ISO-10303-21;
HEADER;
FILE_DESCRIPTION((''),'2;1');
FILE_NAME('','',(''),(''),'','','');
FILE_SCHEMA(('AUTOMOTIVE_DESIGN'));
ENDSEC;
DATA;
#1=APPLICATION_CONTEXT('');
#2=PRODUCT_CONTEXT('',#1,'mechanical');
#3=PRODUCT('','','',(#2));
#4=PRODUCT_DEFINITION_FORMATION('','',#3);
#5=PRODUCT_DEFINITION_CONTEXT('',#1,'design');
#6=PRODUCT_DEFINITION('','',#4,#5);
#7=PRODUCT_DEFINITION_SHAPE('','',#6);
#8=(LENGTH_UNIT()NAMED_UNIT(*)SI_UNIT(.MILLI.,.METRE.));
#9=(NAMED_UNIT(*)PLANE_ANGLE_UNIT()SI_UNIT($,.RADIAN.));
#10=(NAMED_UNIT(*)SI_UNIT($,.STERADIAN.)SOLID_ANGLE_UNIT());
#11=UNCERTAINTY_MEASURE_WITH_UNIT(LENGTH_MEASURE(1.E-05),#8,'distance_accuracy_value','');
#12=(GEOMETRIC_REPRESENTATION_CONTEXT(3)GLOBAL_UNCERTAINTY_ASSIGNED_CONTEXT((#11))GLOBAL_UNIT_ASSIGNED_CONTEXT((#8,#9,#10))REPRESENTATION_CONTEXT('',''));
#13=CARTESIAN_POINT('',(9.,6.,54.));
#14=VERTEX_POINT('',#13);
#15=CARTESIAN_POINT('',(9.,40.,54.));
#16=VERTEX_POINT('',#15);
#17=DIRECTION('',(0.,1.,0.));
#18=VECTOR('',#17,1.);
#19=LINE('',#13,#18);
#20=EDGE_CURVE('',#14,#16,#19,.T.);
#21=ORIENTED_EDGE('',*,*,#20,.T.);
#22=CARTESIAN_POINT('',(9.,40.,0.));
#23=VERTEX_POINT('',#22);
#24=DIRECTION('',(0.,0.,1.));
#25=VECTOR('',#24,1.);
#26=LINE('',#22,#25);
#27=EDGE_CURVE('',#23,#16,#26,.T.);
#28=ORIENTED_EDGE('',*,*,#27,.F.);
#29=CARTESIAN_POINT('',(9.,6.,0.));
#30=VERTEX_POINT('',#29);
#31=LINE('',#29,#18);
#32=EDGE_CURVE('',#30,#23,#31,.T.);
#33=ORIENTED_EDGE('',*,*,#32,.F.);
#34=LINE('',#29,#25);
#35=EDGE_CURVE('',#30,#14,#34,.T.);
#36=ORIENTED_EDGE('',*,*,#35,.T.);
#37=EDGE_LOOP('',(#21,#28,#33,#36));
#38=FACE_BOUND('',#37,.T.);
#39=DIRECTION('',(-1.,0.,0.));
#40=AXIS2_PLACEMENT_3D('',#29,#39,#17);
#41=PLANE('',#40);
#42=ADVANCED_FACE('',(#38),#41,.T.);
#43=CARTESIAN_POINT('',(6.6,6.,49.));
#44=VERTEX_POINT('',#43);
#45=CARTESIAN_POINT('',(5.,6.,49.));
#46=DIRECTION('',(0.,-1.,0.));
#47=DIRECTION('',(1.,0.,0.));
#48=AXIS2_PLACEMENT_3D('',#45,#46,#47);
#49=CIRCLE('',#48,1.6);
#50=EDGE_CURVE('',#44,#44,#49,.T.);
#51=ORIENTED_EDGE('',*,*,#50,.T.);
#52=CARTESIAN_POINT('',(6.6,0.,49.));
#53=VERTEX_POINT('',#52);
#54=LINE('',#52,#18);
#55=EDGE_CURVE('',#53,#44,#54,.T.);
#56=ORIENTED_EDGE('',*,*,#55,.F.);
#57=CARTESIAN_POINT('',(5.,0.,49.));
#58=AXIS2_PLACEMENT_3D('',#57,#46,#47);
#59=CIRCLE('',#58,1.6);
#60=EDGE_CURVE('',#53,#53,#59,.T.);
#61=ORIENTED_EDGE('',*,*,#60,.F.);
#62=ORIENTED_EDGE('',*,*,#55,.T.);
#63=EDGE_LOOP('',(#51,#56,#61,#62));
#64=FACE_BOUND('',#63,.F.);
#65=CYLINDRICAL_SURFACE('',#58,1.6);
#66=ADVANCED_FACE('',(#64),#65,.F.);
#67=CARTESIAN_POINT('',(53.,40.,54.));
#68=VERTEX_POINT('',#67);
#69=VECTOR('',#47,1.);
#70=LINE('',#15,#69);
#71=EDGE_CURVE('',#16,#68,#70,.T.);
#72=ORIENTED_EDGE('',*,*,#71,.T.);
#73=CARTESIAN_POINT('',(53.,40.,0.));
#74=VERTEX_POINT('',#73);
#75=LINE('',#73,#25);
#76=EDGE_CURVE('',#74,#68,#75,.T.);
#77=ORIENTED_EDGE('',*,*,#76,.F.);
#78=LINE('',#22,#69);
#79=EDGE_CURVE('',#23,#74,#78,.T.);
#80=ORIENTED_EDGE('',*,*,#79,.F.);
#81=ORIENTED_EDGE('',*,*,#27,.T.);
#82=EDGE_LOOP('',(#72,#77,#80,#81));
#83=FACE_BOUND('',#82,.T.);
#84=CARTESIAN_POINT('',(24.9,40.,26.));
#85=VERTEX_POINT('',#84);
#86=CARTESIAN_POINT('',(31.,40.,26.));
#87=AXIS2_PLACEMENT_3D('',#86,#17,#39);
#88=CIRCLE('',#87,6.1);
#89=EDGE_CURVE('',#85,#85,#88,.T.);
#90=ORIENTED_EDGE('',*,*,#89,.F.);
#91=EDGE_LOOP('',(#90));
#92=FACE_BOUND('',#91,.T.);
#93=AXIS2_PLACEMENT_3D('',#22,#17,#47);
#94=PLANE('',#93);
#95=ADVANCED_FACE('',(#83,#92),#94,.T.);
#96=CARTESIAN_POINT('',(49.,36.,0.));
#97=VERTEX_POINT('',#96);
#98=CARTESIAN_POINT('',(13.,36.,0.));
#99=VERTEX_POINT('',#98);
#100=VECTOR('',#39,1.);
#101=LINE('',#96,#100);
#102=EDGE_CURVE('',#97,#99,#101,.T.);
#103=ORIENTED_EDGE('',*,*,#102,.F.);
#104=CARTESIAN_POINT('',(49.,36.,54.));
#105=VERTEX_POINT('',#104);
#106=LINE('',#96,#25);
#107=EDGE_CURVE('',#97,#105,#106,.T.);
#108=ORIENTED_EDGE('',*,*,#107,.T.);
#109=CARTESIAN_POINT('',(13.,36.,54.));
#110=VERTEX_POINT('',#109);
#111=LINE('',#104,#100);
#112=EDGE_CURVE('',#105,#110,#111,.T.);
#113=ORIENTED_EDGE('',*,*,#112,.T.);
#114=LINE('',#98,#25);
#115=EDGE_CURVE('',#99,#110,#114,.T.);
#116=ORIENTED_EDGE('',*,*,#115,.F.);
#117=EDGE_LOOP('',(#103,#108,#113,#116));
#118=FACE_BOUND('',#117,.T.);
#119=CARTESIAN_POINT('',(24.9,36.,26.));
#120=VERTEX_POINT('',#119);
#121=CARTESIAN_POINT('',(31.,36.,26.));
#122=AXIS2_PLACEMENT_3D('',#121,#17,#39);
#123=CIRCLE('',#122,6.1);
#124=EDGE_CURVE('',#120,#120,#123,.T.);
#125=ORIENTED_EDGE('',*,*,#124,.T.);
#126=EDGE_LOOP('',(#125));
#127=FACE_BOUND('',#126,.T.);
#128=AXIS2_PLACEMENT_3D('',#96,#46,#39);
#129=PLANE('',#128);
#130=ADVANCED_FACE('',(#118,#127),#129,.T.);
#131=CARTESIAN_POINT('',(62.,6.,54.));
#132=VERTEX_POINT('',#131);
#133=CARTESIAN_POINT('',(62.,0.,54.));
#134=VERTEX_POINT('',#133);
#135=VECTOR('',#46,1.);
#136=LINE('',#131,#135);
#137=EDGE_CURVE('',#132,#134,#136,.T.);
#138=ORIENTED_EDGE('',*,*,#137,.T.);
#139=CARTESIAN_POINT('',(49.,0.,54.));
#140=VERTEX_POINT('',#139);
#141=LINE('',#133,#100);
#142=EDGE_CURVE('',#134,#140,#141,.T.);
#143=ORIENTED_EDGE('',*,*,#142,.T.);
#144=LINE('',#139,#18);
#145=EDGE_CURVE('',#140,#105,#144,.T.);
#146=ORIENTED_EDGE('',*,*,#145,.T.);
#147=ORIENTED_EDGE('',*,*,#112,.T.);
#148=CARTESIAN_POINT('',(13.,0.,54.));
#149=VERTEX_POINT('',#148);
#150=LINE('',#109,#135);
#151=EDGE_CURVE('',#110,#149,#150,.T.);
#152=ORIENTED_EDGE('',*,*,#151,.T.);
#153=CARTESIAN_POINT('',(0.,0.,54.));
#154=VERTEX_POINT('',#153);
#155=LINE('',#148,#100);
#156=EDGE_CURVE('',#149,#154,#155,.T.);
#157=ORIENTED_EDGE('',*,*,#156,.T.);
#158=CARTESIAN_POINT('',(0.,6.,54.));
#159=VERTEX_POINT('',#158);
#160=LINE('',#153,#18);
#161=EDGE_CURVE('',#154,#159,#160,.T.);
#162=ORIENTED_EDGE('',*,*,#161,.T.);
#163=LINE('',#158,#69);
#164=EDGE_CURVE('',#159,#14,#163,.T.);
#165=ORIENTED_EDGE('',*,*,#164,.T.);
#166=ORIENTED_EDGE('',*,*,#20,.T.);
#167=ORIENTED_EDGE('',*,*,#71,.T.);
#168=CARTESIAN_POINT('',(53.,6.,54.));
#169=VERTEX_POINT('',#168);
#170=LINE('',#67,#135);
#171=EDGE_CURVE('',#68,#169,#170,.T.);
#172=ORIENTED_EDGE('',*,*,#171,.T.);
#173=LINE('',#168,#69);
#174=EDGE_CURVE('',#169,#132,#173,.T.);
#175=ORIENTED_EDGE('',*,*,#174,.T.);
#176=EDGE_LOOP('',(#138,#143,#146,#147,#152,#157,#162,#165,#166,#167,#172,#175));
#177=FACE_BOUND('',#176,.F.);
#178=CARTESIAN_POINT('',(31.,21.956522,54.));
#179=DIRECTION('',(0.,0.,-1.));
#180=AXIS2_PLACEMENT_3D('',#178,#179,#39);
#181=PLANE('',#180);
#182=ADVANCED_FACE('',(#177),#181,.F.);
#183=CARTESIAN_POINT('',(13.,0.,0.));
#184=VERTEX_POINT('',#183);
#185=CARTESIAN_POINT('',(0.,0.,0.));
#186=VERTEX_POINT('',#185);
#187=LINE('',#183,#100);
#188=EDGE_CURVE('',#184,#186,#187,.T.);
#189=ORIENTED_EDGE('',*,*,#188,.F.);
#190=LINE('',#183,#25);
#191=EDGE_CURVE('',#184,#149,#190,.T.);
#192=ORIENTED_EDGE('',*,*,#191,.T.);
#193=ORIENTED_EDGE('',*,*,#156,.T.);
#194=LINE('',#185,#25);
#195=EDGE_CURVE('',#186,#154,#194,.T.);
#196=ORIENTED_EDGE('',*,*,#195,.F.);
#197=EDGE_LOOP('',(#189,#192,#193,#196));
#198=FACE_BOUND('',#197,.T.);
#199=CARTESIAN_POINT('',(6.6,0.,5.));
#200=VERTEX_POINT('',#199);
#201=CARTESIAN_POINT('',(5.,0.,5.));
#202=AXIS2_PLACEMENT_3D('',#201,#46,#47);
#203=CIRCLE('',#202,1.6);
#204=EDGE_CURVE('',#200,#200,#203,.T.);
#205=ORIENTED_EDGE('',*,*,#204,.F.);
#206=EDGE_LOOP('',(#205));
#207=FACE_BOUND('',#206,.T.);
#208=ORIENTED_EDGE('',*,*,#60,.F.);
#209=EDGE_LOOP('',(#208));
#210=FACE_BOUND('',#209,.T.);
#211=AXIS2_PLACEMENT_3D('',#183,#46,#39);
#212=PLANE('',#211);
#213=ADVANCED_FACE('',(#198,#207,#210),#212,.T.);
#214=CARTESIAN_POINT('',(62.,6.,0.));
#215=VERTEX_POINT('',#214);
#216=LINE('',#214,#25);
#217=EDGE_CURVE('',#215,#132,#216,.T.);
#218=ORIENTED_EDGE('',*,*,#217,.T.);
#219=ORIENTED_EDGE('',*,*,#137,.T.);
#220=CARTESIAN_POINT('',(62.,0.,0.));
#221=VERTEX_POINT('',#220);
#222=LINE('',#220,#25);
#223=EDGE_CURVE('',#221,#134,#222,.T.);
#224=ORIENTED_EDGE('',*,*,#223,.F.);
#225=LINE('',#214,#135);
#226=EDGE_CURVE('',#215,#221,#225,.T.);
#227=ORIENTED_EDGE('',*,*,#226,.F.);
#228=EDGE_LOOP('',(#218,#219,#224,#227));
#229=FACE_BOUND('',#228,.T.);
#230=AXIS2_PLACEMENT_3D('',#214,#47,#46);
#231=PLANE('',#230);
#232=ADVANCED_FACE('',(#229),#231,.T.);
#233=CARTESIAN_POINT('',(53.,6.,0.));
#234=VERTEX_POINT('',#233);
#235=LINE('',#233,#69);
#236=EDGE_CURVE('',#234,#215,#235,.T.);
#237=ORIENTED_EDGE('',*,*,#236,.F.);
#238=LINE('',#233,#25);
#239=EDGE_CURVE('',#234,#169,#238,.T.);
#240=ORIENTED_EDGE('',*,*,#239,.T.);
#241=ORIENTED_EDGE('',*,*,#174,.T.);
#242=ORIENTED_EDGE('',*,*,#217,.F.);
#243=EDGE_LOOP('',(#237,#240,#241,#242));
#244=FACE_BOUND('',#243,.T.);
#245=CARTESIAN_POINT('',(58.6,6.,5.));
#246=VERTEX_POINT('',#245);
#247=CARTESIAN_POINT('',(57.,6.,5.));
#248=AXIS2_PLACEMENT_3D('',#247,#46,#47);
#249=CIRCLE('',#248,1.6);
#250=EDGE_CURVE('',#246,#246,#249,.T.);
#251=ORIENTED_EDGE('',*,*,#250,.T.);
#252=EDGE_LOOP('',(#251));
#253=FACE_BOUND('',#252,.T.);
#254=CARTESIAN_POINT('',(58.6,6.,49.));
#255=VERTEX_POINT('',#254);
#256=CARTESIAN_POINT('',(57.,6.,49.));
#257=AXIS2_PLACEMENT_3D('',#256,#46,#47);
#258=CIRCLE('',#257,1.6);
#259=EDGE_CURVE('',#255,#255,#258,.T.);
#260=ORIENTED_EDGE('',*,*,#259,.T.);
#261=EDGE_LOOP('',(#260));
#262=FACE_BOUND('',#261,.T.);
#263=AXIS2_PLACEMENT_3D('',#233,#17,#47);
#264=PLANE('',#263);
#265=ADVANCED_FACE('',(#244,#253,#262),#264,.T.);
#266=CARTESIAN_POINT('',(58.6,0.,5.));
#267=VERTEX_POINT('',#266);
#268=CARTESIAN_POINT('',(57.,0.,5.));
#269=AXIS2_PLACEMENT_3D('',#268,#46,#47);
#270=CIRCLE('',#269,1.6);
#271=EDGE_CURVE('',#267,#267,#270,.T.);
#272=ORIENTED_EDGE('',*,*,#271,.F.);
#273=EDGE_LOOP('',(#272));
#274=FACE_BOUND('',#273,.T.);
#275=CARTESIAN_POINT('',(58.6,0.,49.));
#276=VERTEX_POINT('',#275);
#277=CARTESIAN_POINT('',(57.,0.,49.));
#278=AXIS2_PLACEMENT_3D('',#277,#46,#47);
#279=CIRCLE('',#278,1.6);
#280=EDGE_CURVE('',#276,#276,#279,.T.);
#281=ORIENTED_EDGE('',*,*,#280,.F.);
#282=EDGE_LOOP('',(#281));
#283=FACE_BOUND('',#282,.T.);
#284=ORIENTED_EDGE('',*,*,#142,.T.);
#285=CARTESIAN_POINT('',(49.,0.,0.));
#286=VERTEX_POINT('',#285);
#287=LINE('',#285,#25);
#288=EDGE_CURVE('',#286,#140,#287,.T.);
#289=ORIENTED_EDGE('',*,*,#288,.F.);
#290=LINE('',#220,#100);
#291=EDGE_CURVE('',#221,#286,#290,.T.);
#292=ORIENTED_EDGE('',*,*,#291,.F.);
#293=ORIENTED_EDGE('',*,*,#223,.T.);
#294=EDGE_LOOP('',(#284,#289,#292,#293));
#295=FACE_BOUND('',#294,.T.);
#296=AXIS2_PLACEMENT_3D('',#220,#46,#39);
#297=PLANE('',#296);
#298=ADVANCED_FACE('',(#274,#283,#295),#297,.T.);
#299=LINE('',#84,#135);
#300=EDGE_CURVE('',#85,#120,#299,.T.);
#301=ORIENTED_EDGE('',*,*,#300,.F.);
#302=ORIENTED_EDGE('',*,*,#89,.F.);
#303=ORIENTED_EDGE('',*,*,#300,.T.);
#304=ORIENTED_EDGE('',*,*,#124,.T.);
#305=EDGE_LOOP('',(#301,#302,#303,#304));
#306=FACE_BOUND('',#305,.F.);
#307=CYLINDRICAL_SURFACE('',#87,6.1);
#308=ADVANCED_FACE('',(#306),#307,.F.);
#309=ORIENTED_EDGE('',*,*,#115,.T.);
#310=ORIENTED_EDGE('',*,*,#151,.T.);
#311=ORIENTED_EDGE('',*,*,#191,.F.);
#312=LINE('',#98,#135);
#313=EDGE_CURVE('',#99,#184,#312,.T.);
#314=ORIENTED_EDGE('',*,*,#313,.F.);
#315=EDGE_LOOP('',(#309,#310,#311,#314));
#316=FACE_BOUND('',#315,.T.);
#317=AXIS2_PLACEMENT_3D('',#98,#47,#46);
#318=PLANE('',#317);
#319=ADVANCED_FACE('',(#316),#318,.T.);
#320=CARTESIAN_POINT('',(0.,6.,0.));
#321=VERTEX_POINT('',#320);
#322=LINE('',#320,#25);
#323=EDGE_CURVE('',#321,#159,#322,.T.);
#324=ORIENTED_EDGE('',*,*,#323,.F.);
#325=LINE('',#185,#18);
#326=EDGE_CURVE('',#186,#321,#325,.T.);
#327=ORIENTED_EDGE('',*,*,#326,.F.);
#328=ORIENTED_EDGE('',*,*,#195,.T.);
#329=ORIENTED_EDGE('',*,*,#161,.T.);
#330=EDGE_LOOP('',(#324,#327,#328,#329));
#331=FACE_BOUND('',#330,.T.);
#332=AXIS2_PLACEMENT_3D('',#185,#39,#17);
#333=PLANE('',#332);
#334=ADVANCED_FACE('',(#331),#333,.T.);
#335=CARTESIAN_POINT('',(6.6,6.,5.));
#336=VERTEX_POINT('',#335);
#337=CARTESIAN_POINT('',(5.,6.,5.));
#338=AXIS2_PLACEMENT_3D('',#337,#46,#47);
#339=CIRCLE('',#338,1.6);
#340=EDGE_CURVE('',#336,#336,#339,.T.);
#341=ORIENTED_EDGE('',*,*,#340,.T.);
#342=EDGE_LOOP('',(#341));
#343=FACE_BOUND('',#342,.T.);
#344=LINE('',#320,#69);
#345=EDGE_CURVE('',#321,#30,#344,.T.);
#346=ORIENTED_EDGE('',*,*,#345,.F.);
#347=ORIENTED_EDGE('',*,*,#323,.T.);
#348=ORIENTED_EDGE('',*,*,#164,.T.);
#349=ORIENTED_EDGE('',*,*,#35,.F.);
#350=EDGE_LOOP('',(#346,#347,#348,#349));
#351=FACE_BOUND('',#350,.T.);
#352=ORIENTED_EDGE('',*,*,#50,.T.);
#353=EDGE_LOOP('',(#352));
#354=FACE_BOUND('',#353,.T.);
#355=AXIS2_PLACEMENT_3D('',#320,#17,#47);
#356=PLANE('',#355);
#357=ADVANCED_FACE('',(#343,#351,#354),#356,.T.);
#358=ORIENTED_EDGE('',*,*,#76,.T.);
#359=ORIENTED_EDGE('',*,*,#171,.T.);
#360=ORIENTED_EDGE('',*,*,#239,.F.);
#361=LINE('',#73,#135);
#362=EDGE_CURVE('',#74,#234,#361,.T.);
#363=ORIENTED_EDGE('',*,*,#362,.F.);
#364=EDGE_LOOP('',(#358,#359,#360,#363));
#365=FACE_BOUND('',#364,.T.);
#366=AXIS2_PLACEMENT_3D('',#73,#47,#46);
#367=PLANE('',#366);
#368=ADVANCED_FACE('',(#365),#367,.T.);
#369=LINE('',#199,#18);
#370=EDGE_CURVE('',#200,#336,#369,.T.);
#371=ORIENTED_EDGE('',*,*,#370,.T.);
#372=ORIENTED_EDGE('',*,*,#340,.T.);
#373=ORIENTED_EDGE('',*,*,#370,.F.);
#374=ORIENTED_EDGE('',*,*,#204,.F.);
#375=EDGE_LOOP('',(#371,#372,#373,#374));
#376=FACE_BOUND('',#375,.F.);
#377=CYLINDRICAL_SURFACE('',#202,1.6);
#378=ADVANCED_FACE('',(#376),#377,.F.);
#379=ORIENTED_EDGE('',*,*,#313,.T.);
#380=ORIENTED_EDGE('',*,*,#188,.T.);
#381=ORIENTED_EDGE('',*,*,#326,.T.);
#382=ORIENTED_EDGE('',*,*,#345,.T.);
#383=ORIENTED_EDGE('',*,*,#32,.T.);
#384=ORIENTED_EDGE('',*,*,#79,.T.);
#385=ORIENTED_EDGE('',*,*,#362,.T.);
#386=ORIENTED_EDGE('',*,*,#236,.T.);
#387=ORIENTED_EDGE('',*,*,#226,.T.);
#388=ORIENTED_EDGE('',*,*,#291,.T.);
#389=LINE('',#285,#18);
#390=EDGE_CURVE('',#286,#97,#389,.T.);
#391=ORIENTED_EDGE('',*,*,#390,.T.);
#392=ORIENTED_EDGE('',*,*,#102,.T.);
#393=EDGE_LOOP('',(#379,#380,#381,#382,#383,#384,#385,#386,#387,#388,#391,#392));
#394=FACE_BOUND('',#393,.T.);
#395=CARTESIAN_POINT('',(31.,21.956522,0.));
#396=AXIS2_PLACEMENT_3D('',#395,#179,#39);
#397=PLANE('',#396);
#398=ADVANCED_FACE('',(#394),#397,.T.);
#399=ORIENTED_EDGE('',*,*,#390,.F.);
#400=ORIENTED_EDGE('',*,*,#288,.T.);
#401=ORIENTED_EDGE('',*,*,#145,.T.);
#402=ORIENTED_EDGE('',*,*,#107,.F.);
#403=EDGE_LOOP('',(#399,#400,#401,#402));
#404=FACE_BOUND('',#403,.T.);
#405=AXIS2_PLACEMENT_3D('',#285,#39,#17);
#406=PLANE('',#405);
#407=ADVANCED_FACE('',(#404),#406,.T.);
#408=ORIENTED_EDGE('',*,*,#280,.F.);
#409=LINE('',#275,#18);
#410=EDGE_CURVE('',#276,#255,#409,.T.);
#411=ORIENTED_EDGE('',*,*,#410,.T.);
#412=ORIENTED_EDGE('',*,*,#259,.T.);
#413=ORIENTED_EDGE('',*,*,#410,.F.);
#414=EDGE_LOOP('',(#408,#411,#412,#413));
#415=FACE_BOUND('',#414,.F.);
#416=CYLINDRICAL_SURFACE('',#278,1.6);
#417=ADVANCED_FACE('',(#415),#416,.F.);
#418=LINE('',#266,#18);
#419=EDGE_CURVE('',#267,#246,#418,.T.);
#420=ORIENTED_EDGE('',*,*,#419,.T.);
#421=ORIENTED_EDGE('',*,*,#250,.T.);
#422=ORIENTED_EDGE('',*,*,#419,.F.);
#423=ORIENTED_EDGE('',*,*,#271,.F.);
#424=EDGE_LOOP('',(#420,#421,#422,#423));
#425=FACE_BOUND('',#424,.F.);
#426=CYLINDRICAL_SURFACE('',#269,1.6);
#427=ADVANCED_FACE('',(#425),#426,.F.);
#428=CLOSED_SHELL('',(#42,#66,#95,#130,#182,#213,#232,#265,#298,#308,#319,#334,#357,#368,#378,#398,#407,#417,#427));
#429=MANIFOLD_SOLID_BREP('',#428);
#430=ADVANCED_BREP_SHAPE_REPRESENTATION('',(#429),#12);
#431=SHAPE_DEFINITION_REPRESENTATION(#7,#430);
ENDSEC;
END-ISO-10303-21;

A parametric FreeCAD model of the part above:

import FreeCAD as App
import Part
import Sketcher

V = App.Vector

doc = App.newDocument("Part")
body = doc.addObject("PartDesign::Body", "Body")

sketch1 = body.newObject("Sketcher::SketchObject", "Sketch")
sketch1.AttachmentSupport = (doc.getObject("XY_Plane"), [""])
sketch1.MapMode = "FlatFace"
sketch1.addGeometry([
    Part.LineSegment(V(0, 6, 0), V(0, 0, 0)),
    Part.LineSegment(V(0, 0, 0), V(13, 0, 0)),
    Part.LineSegment(V(13, 0, 0), V(13, 36, 0)),
    Part.LineSegment(V(13, 36, 0), V(49, 36, 0)),
    Part.LineSegment(V(49, 36, 0), V(49, 0, 0)),
    Part.LineSegment(V(49, 0, 0), V(62, 0, 0)),
    Part.LineSegment(V(62, 0, 0), V(62, 6, 0)),
    Part.LineSegment(V(62, 6, 0), V(53, 6, 0)),
    Part.LineSegment(V(53, 6, 0), V(53, 40, 0)),
    Part.LineSegment(V(53, 40, 0), V(9, 40, 0)),
    Part.LineSegment(V(9, 40, 0), V(9, 6, 0)),
    Part.LineSegment(V(9, 6, 0), V(0, 6, 0)),
], False)
sketch1.addConstraint([
    Sketcher.Constraint("Coincident", 0, 2, 1, 1),
    Sketcher.Constraint("Coincident", 1, 2, 2, 1),
    Sketcher.Constraint("Coincident", 2, 2, 3, 1),
    Sketcher.Constraint("Coincident", 3, 2, 4, 1),
    Sketcher.Constraint("Coincident", 4, 2, 5, 1),
    Sketcher.Constraint("Coincident", 5, 2, 6, 1),
    Sketcher.Constraint("Coincident", 6, 2, 7, 1),
    Sketcher.Constraint("Coincident", 7, 2, 8, 1),
    Sketcher.Constraint("Coincident", 8, 2, 9, 1),
    Sketcher.Constraint("Coincident", 9, 2, 10, 1),
    Sketcher.Constraint("Coincident", 10, 2, 11, 1),
    Sketcher.Constraint("Coincident", 11, 2, 0, 1),
    Sketcher.Constraint("Vertical", 0),
    Sketcher.Constraint("Horizontal", 1),
    Sketcher.Constraint("Vertical", 2),
    Sketcher.Constraint("Horizontal", 3),
    Sketcher.Constraint("Vertical", 4),
    Sketcher.Constraint("Horizontal", 5),
    Sketcher.Constraint("Vertical", 6),
    Sketcher.Constraint("Horizontal", 7),
    Sketcher.Constraint("Vertical", 8),
    Sketcher.Constraint("Horizontal", 9),
    Sketcher.Constraint("Vertical", 10),
    Sketcher.Constraint("Horizontal", 11),
    Sketcher.Constraint("Coincident", 0, 2, -1, 1),
    Sketcher.Constraint("PointOnObject", 4, 2, -1),
    Sketcher.Constraint("Horizontal", 7, 2, 10, 2),
    Sketcher.Constraint("Equal", 1, 5),
    Sketcher.Constraint("Equal", 7, 11),
    Sketcher.Constraint("Equal", 3, 2),
    Sketcher.Constraint("DistanceX", 1, 1, 1, 2, 13.0),
    Sketcher.Constraint("DistanceX", 3, 1, 3, 2, 36.0),
    Sketcher.Constraint("DistanceX", 7, 2, 7, 1, 9.0),
    Sketcher.Constraint("DistanceY", 0, 2, 0, 1, 6.0),
    Sketcher.Constraint("DistanceY", 8, 1, 8, 2, 34.0),
])
pad1 = body.newObject("PartDesign::Pad", "Pad")
pad1.Profile = sketch1
pad1.Length = 54

sketch2 = body.newObject("Sketcher::SketchObject", "Sketch001")
sketch2.AttachmentSupport = (doc.getObject("XZ_Plane"), [""])
sketch2.MapMode = "FlatFace"
sketch2.addGeometry([
    Part.Circle(V(5, 5, 0), V(0, 0, 1), 1.6),
    Part.Circle(V(57, 5, 0), V(0, 0, 1), 1.6),
    Part.Circle(V(57, 49, 0), V(0, 0, 1), 1.6),
    Part.Circle(V(5, 49, 0), V(0, 0, 1), 1.6),
], False)
sketch2.addConstraint([
    Sketcher.Constraint("Equal", 0, 1),
    Sketcher.Constraint("Equal", 1, 2),
    Sketcher.Constraint("Equal", 2, 3),
    Sketcher.Constraint("Horizontal", 0, 3, 1, 3),
    Sketcher.Constraint("Horizontal", 2, 3, 3, 3),
    Sketcher.Constraint("Vertical", 1, 3, 2, 3),
    Sketcher.Constraint("Vertical", 0, 3, 3, 3),
    Sketcher.Constraint("Diameter", 0, 3.2),
    Sketcher.Constraint("DistanceX", -1, 1, 0, 3, 5.0),
    Sketcher.Constraint("DistanceY", -1, 1, 0, 3, 5.0),
    Sketcher.Constraint("DistanceX", -1, 1, 1, 3, 57.0),
    Sketcher.Constraint("DistanceY", -1, 1, 2, 3, 49.0),
])
pocket1 = body.newObject("PartDesign::Pocket", "Pocket")
pocket1.Profile = sketch2
pocket1.Length = 6

sketch3 = body.newObject("Sketcher::SketchObject", "Sketch002")
sketch3.AttachmentSupport = (doc.getObject("XZ_Plane"), [""])
sketch3.MapMode = "FlatFace"
sketch3.AttachmentOffset = App.Placement(V(0, 0, -40), App.Rotation())
sketch3.addGeometry(Part.Circle(V(31, 26, 0), V(0, 0, 1), 6), False)
sketch3.addConstraint([
    Sketcher.Constraint("Diameter", 0, 12.2),
    Sketcher.Constraint("DistanceX", -1, 1, 0, 3, 31.0),
    Sketcher.Constraint("DistanceY", -1, 1, 0, 3, 26.0),
])
pocket2 = body.newObject("PartDesign::Pocket", "Pocket001")
pocket2.Profile = sketch3
pocket2.Length = 5
pocket2.Reversed = True

doc.recompute()
